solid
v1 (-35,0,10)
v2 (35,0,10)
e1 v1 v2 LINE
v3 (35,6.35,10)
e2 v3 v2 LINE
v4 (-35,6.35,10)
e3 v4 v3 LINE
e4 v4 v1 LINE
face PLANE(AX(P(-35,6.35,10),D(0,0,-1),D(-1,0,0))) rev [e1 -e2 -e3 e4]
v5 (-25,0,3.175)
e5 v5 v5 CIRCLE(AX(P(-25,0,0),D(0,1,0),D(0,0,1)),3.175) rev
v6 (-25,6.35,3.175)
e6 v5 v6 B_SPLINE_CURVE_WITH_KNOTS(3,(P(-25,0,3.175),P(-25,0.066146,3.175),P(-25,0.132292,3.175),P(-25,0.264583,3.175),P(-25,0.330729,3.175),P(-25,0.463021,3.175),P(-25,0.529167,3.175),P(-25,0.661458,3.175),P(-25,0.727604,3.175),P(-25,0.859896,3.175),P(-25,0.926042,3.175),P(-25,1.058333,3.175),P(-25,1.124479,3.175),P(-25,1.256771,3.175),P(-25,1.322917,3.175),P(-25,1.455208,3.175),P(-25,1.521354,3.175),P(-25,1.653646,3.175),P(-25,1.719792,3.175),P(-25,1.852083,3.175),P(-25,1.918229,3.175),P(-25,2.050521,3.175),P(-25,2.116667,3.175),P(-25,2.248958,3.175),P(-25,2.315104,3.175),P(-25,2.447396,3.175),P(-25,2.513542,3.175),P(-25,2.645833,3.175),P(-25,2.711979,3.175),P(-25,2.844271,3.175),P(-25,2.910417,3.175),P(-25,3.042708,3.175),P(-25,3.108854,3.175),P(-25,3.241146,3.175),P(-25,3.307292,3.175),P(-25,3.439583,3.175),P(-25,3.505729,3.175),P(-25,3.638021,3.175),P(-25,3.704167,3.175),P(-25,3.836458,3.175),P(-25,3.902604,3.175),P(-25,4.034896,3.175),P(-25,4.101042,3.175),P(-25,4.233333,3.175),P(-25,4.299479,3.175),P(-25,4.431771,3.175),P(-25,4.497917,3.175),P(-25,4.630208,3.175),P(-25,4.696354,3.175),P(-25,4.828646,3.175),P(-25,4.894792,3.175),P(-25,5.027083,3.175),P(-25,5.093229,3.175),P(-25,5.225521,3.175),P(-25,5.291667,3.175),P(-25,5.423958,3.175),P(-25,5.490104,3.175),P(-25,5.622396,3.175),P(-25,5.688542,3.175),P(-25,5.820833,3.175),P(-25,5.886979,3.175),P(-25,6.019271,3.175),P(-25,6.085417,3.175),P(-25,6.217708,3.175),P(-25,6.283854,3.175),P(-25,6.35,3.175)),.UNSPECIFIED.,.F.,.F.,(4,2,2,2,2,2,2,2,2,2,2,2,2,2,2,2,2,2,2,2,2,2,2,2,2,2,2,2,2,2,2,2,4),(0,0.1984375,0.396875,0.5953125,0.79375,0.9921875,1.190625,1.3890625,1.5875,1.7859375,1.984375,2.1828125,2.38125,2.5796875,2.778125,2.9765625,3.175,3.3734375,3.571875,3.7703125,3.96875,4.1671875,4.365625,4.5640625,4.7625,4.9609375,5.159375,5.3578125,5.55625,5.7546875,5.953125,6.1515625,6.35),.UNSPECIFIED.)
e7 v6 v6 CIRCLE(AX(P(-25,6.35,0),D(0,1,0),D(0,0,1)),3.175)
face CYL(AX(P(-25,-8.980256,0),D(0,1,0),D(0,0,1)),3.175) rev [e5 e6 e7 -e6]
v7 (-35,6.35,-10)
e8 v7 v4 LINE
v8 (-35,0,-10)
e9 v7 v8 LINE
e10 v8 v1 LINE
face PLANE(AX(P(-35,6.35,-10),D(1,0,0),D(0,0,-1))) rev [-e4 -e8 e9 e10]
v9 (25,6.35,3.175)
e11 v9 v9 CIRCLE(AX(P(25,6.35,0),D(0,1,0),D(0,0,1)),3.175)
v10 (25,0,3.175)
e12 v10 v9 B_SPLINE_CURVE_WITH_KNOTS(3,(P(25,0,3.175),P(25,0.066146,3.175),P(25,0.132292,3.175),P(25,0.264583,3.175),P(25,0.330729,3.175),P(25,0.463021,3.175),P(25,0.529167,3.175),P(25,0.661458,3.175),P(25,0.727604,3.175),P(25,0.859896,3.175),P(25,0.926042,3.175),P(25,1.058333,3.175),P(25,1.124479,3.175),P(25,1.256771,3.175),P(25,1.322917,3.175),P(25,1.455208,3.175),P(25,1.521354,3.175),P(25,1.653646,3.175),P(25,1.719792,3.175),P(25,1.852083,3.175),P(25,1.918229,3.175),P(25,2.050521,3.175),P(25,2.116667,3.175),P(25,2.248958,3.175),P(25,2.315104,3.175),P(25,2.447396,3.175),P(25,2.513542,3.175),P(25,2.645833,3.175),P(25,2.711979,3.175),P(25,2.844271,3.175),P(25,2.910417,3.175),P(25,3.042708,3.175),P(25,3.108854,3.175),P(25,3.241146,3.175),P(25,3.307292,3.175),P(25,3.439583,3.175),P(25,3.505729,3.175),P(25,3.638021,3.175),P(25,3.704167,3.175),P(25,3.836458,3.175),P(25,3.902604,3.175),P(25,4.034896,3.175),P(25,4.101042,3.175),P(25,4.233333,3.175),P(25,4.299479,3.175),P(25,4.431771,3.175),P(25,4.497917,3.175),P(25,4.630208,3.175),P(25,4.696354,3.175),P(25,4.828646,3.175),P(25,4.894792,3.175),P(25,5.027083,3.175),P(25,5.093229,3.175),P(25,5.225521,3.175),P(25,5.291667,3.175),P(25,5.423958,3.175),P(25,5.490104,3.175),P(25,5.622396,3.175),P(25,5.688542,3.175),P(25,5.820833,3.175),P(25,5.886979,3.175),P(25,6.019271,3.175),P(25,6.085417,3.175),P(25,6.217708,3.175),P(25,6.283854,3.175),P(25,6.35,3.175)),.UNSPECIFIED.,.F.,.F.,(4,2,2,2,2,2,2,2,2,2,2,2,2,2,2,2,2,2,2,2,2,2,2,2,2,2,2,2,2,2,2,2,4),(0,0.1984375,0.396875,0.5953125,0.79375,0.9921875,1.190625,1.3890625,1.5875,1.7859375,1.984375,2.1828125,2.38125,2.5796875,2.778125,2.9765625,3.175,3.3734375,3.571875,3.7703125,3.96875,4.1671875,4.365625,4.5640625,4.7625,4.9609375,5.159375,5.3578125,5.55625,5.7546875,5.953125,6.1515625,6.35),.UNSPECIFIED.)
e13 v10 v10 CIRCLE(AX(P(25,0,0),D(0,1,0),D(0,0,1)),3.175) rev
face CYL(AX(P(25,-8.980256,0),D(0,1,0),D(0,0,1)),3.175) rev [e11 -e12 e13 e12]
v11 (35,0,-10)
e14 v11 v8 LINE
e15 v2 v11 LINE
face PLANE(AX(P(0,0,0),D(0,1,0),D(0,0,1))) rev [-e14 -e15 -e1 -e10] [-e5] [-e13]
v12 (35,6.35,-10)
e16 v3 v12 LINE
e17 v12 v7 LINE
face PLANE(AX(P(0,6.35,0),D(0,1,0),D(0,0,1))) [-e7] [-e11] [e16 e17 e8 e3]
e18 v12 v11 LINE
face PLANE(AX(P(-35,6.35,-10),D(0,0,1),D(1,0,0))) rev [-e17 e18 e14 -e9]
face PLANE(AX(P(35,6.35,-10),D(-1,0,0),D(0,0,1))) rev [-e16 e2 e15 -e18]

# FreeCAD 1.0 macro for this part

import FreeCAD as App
import Part
import Sketcher

V = App.Vector

doc = App.newDocument("Part")
body = doc.addObject("PartDesign::Body", "Body")

# Sketch on XZ plane
sketch1 = body.newObject("Sketcher::SketchObject", "Sketch")
sketch1.AttachmentSupport = (doc.getObject("XZ_Plane"), [""])
sketch1.MapMode = "FlatFace"
sketch1.addGeometry(Part.LineSegment(V(-35, -10, 0), V(-35, 10, 0)), False)
sketch1.addGeometry(Part.LineSegment(V(-35, 10, 0), V(35, 10, 0)), False)
sketch1.addGeometry(Part.LineSegment(V(35, 10, 0), V(35, -10, 0)), False)
sketch1.addGeometry(Part.LineSegment(V(35, -10, 0), V(-35, -10, 0)), False)
sketch1.addConstraint(Sketcher.Constraint("Coincident", 0, 2, 1, 1))
sketch1.addConstraint(Sketcher.Constraint("Coincident", 1, 2, 2, 1))
sketch1.addConstraint(Sketcher.Constraint("Coincident", 2, 2, 3, 1))
sketch1.addConstraint(Sketcher.Constraint("Coincident", 3, 2, 0, 1))
sketch1.addConstraint(Sketcher.Constraint("Vertical", 0))
sketch1.addConstraint(Sketcher.Constraint("Horizontal", 1))
sketch1.addConstraint(Sketcher.Constraint("Vertical", 2))
sketch1.addConstraint(Sketcher.Constraint("Horizontal", 3))
sketch1.addConstraint(Sketcher.Constraint("Symmetric", 0, 2, 2, 2, -1, 1))
sketch1.addConstraint(Sketcher.Constraint("DistanceX", 1, 1, 1, 2, 70.0))
sketch1.addConstraint(Sketcher.Constraint("DistanceY", 0, 1, 0, 2, 20.0))
pad1 = body.newObject("PartDesign::Pad", "Pad")
pad1.Profile = sketch1
pad1.Length = 6.35
pad1.Reversed = True

# Sketch on XZ plane
sketch2 = body.newObject("Sketcher::SketchObject", "Sketch001")
sketch2.AttachmentSupport = (doc.getObject("XZ_Plane"), [""])
sketch2.MapMode = "FlatFace"
sketch2.AttachmentOffset = App.Placement(V(0, 0, -6.35), App.Rotation())
sketch2.addGeometry(Part.Circle(V(-25, 0, 0), V(0, 0, 1), 3.2), False)
sketch2.addGeometry(Part.Circle(V(25, 0, 0), V(0, 0, 1), 3.2), False)
sketch2.addConstraint(Sketcher.Constraint("Equal", 0, 1))
sketch2.addConstraint(Sketcher.Constraint("Symmetric", 0, 3, 1, 3, -1, 1))
sketch2.addConstraint(Sketcher.Constraint("PointOnObject", 0, 3, -1))
sketch2.addConstraint(Sketcher.Constraint("Diameter", 0, 6.35))
sketch2.addConstraint(Sketcher.Constraint("DistanceX", 0, 3, -1, 1, 25.0))
pocket1 = body.newObject("PartDesign::Pocket", "Pocket")
pocket1.Profile = sketch2
pocket1.Length = 6.35
pocket1.Reversed = True

doc.recompute()
